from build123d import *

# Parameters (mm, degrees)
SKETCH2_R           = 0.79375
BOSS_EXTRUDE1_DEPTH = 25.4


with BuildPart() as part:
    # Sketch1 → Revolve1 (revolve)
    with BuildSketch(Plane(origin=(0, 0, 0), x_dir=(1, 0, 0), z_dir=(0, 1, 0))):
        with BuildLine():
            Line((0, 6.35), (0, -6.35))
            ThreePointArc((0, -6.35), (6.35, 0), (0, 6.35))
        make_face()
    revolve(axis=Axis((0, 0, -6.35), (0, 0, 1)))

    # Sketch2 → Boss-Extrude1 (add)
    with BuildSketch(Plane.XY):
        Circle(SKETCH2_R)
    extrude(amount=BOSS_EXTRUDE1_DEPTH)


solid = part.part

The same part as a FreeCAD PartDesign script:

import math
import FreeCAD as App
import Part
import Sketcher
from FreeCAD import Vector
Q = App.Units.Quantity

doc = App.newDocument("Part")
body = doc.addObject("PartDesign::Body", "Body")

# Sketch on XZ plane
sketch1 = body.newObject("Sketcher::SketchObject", "Sketch")
sketch1.AttachmentSupport = (doc.getObject("XZ_Plane"), [""])
sketch1.MapMode = "FlatFace"
sketch1.addGeometry([
    Part.LineSegment(Vector(0, -6, 0), Vector(0, 6, 0)),
    Part.ArcOfCircle(Part.Circle(Vector(0, 0, 0), Vector(0, 0, 1), 6), math.radians(-90), math.radians(90)),
], False)
sketch1.addConstraint([
    Sketcher.Constraint("Coincident", 0, 1, 1, 1),
    Sketcher.Constraint("Coincident", 1, 2, 0, 2),
    Sketcher.Constraint("Vertical", 0),
    Sketcher.Constraint("Coincident", 1, 3, -1, 1),
    Sketcher.Constraint("PointOnObject", 0, 1, -2),
    Sketcher.Constraint("Radius", 1, Q("0.25 in")),
])
revolution = body.newObject("PartDesign::Revolution", "Revolution")
revolution.Profile = sketch1
revolution.ReferenceAxis = (sketch1, ["V_Axis"])
revolution.Angle = 360

# Sketch on XY plane
sketch2 = body.newObject("Sketcher::SketchObject", "Sketch001")
sketch2.AttachmentSupport = (doc.getObject("XY_Plane"), [""])
sketch2.MapMode = "FlatFace"
sketch2.addGeometry(Part.Circle(Vector(0, 0, 0), Vector(0, 0, 1), 0.8), False)
sketch2.addConstraint([
    Sketcher.Constraint("Coincident", 0, 3, -1, 1),
    Sketcher.Constraint("Diameter", 0, Q("0.0625 in")),
])
pad1 = body.newObject("PartDesign::Pad", "Pad")
pad1.Profile = sketch2
pad1.Length = Q("1 in")

doc.recompute()
